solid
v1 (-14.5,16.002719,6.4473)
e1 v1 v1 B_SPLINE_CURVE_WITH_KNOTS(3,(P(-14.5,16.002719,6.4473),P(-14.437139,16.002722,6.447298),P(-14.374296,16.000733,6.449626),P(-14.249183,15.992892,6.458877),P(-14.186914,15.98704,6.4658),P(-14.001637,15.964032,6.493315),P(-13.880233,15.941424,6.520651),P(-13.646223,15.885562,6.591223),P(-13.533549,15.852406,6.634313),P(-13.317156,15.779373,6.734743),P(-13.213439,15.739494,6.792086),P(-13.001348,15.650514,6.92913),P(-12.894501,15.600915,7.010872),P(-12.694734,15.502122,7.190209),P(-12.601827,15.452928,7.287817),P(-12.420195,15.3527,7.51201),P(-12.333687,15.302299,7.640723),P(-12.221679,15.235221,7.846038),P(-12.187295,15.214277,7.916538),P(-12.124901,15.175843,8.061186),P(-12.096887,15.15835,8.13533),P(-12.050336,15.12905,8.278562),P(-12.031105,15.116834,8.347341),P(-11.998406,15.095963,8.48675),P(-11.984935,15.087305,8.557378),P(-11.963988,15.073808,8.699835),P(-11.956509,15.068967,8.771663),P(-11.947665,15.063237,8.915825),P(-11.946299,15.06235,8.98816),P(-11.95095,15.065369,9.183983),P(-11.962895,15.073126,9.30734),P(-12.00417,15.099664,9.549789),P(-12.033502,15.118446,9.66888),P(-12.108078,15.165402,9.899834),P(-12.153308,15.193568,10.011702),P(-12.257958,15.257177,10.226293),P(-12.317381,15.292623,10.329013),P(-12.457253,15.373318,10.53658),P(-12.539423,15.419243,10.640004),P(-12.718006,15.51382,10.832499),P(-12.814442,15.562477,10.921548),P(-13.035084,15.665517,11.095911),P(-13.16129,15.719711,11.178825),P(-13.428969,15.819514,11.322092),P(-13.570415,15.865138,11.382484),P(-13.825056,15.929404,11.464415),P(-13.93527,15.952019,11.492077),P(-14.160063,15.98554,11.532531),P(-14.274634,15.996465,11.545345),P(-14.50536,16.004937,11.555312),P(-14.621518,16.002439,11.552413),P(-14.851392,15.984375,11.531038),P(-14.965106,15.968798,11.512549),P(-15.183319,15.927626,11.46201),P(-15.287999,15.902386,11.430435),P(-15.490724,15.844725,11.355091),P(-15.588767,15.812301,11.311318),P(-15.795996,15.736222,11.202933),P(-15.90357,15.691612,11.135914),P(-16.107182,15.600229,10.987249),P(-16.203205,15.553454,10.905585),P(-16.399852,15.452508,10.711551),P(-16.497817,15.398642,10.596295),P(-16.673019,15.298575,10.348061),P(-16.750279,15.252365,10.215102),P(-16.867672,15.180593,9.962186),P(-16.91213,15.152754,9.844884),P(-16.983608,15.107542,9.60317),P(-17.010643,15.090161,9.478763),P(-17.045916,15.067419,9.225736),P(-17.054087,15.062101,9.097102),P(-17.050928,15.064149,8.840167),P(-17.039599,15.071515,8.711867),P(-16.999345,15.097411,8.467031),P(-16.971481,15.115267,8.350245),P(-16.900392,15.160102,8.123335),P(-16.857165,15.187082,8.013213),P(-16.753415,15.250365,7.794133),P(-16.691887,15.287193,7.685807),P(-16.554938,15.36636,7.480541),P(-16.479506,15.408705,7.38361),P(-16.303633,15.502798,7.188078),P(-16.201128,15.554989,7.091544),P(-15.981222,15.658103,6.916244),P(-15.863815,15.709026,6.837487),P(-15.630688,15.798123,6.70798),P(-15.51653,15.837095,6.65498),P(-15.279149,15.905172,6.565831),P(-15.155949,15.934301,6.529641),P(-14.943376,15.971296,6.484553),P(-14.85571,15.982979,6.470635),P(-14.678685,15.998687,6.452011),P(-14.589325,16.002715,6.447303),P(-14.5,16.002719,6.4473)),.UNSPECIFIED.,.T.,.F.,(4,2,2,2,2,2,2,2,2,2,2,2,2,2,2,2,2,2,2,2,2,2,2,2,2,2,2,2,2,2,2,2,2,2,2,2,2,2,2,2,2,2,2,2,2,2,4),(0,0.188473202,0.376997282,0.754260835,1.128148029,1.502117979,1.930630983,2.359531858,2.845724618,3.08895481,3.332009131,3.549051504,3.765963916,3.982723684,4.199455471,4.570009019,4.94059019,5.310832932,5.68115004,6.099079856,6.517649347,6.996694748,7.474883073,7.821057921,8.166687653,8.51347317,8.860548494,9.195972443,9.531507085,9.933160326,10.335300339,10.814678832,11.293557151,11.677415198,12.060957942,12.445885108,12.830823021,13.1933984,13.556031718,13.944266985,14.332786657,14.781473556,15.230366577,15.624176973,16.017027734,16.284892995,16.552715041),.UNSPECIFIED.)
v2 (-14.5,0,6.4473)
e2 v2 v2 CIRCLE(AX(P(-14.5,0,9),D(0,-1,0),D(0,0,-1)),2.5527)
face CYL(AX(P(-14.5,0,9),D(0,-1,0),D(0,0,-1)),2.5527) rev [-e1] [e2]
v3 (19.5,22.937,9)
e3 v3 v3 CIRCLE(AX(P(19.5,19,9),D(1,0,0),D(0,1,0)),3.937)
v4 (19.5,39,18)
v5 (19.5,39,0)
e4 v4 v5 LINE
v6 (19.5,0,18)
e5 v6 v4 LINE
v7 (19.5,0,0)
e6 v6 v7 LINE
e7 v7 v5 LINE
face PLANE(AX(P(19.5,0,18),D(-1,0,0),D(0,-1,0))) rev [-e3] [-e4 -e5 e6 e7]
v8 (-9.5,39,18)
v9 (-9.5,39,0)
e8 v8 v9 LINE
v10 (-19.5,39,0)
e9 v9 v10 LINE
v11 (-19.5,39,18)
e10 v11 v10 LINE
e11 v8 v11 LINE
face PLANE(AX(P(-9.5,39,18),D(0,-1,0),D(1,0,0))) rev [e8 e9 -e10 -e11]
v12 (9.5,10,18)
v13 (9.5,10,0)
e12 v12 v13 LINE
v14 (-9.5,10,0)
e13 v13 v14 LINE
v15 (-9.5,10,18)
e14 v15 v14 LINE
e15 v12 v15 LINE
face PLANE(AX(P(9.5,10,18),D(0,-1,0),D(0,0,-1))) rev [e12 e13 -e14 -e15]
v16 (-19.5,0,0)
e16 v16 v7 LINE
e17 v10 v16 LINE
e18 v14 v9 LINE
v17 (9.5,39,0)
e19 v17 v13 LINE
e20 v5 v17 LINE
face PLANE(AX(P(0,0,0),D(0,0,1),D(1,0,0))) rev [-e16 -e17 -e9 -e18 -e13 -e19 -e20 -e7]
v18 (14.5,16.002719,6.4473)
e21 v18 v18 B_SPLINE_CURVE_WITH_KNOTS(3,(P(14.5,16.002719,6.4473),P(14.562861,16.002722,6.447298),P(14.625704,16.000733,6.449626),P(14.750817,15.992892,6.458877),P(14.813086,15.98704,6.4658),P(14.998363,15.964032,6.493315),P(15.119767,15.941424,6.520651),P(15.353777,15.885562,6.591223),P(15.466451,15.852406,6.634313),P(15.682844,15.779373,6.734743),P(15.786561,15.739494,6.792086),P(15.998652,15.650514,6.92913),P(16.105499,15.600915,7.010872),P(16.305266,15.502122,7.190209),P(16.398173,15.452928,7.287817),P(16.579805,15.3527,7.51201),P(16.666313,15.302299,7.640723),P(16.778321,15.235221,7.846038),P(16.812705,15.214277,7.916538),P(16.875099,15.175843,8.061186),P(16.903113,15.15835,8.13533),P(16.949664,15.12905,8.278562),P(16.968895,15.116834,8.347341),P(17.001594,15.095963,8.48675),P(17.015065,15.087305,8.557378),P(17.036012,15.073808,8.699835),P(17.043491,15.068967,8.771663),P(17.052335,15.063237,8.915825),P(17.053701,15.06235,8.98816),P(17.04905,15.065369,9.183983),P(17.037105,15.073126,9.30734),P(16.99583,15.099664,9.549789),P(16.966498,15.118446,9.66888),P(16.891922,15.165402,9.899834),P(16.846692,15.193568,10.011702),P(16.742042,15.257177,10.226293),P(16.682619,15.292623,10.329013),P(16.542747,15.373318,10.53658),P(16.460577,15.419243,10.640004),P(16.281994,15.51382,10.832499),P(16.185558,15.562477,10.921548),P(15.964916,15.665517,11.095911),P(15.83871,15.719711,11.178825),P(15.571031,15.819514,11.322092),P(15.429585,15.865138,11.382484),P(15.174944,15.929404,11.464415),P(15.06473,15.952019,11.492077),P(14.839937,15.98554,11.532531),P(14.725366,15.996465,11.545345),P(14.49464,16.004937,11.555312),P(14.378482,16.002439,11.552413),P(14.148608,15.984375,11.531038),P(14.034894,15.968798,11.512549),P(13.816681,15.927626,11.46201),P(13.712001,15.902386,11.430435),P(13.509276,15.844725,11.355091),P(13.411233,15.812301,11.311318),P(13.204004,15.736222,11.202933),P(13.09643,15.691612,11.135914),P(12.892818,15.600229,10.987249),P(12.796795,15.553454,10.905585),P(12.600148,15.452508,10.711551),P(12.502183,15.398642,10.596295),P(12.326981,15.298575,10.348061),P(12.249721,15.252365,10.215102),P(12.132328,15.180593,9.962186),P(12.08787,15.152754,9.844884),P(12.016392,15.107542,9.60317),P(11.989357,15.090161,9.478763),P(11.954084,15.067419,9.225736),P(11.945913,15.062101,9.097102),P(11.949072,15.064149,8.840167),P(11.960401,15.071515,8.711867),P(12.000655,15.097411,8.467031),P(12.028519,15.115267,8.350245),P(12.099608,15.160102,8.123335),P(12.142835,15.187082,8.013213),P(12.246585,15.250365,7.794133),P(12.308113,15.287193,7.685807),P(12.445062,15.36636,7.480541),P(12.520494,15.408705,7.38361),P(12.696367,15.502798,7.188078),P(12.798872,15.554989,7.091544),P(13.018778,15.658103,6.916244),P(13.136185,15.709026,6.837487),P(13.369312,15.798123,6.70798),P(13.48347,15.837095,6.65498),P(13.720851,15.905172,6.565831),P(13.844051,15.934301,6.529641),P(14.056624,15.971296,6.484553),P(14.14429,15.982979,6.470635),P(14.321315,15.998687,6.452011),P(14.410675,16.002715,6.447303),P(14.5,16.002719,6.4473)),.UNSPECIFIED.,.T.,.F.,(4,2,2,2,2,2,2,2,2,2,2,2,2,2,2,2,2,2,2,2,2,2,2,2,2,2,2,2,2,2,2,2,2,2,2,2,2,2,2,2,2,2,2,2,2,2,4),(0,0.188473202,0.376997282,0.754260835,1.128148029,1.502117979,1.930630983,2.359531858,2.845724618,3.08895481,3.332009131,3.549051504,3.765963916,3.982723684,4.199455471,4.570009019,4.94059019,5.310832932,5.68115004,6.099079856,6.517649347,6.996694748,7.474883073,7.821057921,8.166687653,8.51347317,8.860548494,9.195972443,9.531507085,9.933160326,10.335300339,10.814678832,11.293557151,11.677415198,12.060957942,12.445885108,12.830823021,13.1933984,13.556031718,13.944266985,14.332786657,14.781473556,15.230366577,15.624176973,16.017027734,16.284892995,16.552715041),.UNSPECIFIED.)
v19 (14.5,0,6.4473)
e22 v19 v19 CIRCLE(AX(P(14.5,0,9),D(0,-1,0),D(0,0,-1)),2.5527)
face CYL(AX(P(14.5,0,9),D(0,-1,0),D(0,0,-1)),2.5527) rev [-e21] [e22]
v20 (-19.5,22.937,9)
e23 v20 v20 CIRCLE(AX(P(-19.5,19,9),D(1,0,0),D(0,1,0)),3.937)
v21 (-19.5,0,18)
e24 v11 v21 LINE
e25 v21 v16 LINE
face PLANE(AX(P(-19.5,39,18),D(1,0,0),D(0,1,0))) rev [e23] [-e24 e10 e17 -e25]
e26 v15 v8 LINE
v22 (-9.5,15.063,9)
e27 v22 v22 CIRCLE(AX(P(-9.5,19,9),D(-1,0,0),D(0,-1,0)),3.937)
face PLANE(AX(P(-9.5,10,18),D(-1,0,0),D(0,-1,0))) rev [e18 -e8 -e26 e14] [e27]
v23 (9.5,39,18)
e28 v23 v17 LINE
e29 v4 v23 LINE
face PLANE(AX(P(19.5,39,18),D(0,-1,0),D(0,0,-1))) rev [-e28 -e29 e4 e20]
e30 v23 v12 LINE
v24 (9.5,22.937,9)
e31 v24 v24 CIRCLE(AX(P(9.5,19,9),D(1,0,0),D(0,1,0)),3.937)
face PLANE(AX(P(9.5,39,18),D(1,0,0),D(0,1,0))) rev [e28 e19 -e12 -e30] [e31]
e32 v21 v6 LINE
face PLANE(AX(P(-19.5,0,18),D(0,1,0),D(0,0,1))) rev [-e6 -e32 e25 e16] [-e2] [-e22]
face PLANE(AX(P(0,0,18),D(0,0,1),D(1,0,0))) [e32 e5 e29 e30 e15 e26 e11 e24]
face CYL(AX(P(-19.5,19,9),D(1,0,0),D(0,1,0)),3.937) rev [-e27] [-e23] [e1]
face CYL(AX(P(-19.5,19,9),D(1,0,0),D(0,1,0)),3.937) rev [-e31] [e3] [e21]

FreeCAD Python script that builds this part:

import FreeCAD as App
import Part
import Sketcher
from FreeCAD import Vector


def add_polygon(sketch, points):
    """Adds a closed chain of lines whose ends are joined by coincident constraints."""
    first, n = sketch.GeometryCount, len(points)
    for a, b in zip(points, points[1:] + points[:1]):
        sketch.addGeometry(Part.LineSegment(App.Vector(*a, 0), App.Vector(*b, 0)), False)
    for i in range(n):
        sketch.addConstraint(Sketcher.Constraint("Coincident", first + i, 2, first + (i + 1) % n, 1))

doc = App.newDocument("Part")
params = doc.addObject("Spreadsheet::Sheet", "Params")
for row, (alias, value) in enumerate([
    ("sketch1_width", "39 mm"),
    ("sketch1_width2", "10 mm"),
    ("sketch1_height", "29 mm"),
    ("pad1_length", "18 mm"),
    ("hole_diameter", "5.1054 mm"),
    ("hole_depth", "19.05 mm"),
], start=1):
    params.set(f"A{row}", alias)
    params.set(f"B{row}", "=" + value)
    params.setAlias(f"B{row}", alias)

body = doc.addObject("PartDesign::Body", "Body")

sketch1 = body.newObject("Sketcher::SketchObject", "Sketch")
sketch1.AttachmentSupport = (doc.getObject("XY_Plane"), [""])
sketch1.MapMode = "FlatFace"
add_polygon(sketch1, [(-20, 0), (20, 0), (20, 39), (10, 39), (10, 10), (-10, 10), (-10, 39), (-20, 39)])
sketch1.addConstraint([
    Sketcher.Constraint("Horizontal", 0),
    Sketcher.Constraint("Vertical", 1),
    Sketcher.Constraint("Horizontal", 2),
    Sketcher.Constraint("Vertical", 3),
    Sketcher.Constraint("Horizontal", 4),
    Sketcher.Constraint("Vertical", 5),
    Sketcher.Constraint("Horizontal", 6),
    Sketcher.Constraint("Vertical", 7),
    Sketcher.Constraint("Symmetric", 0, 2, 7, 2, -1, 1),
    Sketcher.Constraint("Symmetric", 2, 2, 5, 2, -2),
    Sketcher.Constraint("Equal", 0, 1),
    Sketcher.Constraint("DistanceX", 0, 1, 0, 2, 39.0),
    Sketcher.Constraint("DistanceX", 2, 2, 2, 1, 10.0),
    Sketcher.Constraint("DistanceY", 3, 2, 3, 1, 29.0),
])
sketch1.setExpression("Constraints[19]", "Params.sketch1_width")
sketch1.setExpression("Constraints[20]", "Params.sketch1_width2")
sketch1.setExpression("Constraints[21]", "Params.sketch1_height")
pad1 = body.newObject("PartDesign::Pad", "Pad")
pad1.Profile = sketch1
pad1.setExpression("Length", "Params.pad1_length")

sketch2 = body.newObject("Sketcher::SketchObject", "Sketch001")
sketch2.AttachmentSupport = (doc.getObject("YZ_Plane"), [""])
sketch2.MapMode = "FlatFace"
sketch2.AttachmentOffset = App.Placement(Vector(0, 0, 19.5), App.Rotation())
sketch2.addGeometry(Part.Circle(Vector(19, 9, 0), Vector(0, 0, 1), 3.9), False)
sketch2.addConstraint([
    Sketcher.Constraint("Diameter", 0, 7.874),
    Sketcher.Constraint("DistanceX", -1, 1, 0, 3, 19.0),
    Sketcher.Constraint("DistanceY", -1, 1, 0, 3, 9.0),
])
pocket1 = body.newObject("PartDesign::Pocket", "Pocket")
pocket1.Profile = sketch2
pocket1.Type = "ThroughAll"

sketch3 = body.newObject("Sketcher::SketchObject", "Sketch002")
sketch3.AttachmentSupport = (doc.getObject("XZ_Plane"), [""])
sketch3.MapMode = "FlatFace"
sketch3.addGeometry([
    Part.Circle(Vector(14.5, 9, 0), Vector(0, 0, 1), 2.6),
    Part.Circle(Vector(-14.5, 9, 0), Vector(0, 0, 1), 2.6),
], False)
sketch3.addConstraint([
    Sketcher.Constraint("Equal", 0, 1),
    Sketcher.Constraint("Symmetric", 0, 3, 1, 3, -2),
    Sketcher.Constraint("DistanceY", -1, 1, 0, 3, 9.0),
    Sketcher.Constraint("DistanceX", 1, 3, 0, 3, 29.0),
    Sketcher.Constraint("Diameter", 0, 5.1054),
])
doc.recompute()
hole = body.newObject("PartDesign::Hole", "Hole")
hole.Profile = sketch3
hole.ThreadType = "None"
hole.setExpression("Diameter", "Params.hole_diameter")
hole.DepthType = "Dimension"
hole.setExpression("Depth", "Params.hole_depth")
hole.DrillPoint = "Angled"
hole.DrillPointAngle = 118

doc.recompute()
